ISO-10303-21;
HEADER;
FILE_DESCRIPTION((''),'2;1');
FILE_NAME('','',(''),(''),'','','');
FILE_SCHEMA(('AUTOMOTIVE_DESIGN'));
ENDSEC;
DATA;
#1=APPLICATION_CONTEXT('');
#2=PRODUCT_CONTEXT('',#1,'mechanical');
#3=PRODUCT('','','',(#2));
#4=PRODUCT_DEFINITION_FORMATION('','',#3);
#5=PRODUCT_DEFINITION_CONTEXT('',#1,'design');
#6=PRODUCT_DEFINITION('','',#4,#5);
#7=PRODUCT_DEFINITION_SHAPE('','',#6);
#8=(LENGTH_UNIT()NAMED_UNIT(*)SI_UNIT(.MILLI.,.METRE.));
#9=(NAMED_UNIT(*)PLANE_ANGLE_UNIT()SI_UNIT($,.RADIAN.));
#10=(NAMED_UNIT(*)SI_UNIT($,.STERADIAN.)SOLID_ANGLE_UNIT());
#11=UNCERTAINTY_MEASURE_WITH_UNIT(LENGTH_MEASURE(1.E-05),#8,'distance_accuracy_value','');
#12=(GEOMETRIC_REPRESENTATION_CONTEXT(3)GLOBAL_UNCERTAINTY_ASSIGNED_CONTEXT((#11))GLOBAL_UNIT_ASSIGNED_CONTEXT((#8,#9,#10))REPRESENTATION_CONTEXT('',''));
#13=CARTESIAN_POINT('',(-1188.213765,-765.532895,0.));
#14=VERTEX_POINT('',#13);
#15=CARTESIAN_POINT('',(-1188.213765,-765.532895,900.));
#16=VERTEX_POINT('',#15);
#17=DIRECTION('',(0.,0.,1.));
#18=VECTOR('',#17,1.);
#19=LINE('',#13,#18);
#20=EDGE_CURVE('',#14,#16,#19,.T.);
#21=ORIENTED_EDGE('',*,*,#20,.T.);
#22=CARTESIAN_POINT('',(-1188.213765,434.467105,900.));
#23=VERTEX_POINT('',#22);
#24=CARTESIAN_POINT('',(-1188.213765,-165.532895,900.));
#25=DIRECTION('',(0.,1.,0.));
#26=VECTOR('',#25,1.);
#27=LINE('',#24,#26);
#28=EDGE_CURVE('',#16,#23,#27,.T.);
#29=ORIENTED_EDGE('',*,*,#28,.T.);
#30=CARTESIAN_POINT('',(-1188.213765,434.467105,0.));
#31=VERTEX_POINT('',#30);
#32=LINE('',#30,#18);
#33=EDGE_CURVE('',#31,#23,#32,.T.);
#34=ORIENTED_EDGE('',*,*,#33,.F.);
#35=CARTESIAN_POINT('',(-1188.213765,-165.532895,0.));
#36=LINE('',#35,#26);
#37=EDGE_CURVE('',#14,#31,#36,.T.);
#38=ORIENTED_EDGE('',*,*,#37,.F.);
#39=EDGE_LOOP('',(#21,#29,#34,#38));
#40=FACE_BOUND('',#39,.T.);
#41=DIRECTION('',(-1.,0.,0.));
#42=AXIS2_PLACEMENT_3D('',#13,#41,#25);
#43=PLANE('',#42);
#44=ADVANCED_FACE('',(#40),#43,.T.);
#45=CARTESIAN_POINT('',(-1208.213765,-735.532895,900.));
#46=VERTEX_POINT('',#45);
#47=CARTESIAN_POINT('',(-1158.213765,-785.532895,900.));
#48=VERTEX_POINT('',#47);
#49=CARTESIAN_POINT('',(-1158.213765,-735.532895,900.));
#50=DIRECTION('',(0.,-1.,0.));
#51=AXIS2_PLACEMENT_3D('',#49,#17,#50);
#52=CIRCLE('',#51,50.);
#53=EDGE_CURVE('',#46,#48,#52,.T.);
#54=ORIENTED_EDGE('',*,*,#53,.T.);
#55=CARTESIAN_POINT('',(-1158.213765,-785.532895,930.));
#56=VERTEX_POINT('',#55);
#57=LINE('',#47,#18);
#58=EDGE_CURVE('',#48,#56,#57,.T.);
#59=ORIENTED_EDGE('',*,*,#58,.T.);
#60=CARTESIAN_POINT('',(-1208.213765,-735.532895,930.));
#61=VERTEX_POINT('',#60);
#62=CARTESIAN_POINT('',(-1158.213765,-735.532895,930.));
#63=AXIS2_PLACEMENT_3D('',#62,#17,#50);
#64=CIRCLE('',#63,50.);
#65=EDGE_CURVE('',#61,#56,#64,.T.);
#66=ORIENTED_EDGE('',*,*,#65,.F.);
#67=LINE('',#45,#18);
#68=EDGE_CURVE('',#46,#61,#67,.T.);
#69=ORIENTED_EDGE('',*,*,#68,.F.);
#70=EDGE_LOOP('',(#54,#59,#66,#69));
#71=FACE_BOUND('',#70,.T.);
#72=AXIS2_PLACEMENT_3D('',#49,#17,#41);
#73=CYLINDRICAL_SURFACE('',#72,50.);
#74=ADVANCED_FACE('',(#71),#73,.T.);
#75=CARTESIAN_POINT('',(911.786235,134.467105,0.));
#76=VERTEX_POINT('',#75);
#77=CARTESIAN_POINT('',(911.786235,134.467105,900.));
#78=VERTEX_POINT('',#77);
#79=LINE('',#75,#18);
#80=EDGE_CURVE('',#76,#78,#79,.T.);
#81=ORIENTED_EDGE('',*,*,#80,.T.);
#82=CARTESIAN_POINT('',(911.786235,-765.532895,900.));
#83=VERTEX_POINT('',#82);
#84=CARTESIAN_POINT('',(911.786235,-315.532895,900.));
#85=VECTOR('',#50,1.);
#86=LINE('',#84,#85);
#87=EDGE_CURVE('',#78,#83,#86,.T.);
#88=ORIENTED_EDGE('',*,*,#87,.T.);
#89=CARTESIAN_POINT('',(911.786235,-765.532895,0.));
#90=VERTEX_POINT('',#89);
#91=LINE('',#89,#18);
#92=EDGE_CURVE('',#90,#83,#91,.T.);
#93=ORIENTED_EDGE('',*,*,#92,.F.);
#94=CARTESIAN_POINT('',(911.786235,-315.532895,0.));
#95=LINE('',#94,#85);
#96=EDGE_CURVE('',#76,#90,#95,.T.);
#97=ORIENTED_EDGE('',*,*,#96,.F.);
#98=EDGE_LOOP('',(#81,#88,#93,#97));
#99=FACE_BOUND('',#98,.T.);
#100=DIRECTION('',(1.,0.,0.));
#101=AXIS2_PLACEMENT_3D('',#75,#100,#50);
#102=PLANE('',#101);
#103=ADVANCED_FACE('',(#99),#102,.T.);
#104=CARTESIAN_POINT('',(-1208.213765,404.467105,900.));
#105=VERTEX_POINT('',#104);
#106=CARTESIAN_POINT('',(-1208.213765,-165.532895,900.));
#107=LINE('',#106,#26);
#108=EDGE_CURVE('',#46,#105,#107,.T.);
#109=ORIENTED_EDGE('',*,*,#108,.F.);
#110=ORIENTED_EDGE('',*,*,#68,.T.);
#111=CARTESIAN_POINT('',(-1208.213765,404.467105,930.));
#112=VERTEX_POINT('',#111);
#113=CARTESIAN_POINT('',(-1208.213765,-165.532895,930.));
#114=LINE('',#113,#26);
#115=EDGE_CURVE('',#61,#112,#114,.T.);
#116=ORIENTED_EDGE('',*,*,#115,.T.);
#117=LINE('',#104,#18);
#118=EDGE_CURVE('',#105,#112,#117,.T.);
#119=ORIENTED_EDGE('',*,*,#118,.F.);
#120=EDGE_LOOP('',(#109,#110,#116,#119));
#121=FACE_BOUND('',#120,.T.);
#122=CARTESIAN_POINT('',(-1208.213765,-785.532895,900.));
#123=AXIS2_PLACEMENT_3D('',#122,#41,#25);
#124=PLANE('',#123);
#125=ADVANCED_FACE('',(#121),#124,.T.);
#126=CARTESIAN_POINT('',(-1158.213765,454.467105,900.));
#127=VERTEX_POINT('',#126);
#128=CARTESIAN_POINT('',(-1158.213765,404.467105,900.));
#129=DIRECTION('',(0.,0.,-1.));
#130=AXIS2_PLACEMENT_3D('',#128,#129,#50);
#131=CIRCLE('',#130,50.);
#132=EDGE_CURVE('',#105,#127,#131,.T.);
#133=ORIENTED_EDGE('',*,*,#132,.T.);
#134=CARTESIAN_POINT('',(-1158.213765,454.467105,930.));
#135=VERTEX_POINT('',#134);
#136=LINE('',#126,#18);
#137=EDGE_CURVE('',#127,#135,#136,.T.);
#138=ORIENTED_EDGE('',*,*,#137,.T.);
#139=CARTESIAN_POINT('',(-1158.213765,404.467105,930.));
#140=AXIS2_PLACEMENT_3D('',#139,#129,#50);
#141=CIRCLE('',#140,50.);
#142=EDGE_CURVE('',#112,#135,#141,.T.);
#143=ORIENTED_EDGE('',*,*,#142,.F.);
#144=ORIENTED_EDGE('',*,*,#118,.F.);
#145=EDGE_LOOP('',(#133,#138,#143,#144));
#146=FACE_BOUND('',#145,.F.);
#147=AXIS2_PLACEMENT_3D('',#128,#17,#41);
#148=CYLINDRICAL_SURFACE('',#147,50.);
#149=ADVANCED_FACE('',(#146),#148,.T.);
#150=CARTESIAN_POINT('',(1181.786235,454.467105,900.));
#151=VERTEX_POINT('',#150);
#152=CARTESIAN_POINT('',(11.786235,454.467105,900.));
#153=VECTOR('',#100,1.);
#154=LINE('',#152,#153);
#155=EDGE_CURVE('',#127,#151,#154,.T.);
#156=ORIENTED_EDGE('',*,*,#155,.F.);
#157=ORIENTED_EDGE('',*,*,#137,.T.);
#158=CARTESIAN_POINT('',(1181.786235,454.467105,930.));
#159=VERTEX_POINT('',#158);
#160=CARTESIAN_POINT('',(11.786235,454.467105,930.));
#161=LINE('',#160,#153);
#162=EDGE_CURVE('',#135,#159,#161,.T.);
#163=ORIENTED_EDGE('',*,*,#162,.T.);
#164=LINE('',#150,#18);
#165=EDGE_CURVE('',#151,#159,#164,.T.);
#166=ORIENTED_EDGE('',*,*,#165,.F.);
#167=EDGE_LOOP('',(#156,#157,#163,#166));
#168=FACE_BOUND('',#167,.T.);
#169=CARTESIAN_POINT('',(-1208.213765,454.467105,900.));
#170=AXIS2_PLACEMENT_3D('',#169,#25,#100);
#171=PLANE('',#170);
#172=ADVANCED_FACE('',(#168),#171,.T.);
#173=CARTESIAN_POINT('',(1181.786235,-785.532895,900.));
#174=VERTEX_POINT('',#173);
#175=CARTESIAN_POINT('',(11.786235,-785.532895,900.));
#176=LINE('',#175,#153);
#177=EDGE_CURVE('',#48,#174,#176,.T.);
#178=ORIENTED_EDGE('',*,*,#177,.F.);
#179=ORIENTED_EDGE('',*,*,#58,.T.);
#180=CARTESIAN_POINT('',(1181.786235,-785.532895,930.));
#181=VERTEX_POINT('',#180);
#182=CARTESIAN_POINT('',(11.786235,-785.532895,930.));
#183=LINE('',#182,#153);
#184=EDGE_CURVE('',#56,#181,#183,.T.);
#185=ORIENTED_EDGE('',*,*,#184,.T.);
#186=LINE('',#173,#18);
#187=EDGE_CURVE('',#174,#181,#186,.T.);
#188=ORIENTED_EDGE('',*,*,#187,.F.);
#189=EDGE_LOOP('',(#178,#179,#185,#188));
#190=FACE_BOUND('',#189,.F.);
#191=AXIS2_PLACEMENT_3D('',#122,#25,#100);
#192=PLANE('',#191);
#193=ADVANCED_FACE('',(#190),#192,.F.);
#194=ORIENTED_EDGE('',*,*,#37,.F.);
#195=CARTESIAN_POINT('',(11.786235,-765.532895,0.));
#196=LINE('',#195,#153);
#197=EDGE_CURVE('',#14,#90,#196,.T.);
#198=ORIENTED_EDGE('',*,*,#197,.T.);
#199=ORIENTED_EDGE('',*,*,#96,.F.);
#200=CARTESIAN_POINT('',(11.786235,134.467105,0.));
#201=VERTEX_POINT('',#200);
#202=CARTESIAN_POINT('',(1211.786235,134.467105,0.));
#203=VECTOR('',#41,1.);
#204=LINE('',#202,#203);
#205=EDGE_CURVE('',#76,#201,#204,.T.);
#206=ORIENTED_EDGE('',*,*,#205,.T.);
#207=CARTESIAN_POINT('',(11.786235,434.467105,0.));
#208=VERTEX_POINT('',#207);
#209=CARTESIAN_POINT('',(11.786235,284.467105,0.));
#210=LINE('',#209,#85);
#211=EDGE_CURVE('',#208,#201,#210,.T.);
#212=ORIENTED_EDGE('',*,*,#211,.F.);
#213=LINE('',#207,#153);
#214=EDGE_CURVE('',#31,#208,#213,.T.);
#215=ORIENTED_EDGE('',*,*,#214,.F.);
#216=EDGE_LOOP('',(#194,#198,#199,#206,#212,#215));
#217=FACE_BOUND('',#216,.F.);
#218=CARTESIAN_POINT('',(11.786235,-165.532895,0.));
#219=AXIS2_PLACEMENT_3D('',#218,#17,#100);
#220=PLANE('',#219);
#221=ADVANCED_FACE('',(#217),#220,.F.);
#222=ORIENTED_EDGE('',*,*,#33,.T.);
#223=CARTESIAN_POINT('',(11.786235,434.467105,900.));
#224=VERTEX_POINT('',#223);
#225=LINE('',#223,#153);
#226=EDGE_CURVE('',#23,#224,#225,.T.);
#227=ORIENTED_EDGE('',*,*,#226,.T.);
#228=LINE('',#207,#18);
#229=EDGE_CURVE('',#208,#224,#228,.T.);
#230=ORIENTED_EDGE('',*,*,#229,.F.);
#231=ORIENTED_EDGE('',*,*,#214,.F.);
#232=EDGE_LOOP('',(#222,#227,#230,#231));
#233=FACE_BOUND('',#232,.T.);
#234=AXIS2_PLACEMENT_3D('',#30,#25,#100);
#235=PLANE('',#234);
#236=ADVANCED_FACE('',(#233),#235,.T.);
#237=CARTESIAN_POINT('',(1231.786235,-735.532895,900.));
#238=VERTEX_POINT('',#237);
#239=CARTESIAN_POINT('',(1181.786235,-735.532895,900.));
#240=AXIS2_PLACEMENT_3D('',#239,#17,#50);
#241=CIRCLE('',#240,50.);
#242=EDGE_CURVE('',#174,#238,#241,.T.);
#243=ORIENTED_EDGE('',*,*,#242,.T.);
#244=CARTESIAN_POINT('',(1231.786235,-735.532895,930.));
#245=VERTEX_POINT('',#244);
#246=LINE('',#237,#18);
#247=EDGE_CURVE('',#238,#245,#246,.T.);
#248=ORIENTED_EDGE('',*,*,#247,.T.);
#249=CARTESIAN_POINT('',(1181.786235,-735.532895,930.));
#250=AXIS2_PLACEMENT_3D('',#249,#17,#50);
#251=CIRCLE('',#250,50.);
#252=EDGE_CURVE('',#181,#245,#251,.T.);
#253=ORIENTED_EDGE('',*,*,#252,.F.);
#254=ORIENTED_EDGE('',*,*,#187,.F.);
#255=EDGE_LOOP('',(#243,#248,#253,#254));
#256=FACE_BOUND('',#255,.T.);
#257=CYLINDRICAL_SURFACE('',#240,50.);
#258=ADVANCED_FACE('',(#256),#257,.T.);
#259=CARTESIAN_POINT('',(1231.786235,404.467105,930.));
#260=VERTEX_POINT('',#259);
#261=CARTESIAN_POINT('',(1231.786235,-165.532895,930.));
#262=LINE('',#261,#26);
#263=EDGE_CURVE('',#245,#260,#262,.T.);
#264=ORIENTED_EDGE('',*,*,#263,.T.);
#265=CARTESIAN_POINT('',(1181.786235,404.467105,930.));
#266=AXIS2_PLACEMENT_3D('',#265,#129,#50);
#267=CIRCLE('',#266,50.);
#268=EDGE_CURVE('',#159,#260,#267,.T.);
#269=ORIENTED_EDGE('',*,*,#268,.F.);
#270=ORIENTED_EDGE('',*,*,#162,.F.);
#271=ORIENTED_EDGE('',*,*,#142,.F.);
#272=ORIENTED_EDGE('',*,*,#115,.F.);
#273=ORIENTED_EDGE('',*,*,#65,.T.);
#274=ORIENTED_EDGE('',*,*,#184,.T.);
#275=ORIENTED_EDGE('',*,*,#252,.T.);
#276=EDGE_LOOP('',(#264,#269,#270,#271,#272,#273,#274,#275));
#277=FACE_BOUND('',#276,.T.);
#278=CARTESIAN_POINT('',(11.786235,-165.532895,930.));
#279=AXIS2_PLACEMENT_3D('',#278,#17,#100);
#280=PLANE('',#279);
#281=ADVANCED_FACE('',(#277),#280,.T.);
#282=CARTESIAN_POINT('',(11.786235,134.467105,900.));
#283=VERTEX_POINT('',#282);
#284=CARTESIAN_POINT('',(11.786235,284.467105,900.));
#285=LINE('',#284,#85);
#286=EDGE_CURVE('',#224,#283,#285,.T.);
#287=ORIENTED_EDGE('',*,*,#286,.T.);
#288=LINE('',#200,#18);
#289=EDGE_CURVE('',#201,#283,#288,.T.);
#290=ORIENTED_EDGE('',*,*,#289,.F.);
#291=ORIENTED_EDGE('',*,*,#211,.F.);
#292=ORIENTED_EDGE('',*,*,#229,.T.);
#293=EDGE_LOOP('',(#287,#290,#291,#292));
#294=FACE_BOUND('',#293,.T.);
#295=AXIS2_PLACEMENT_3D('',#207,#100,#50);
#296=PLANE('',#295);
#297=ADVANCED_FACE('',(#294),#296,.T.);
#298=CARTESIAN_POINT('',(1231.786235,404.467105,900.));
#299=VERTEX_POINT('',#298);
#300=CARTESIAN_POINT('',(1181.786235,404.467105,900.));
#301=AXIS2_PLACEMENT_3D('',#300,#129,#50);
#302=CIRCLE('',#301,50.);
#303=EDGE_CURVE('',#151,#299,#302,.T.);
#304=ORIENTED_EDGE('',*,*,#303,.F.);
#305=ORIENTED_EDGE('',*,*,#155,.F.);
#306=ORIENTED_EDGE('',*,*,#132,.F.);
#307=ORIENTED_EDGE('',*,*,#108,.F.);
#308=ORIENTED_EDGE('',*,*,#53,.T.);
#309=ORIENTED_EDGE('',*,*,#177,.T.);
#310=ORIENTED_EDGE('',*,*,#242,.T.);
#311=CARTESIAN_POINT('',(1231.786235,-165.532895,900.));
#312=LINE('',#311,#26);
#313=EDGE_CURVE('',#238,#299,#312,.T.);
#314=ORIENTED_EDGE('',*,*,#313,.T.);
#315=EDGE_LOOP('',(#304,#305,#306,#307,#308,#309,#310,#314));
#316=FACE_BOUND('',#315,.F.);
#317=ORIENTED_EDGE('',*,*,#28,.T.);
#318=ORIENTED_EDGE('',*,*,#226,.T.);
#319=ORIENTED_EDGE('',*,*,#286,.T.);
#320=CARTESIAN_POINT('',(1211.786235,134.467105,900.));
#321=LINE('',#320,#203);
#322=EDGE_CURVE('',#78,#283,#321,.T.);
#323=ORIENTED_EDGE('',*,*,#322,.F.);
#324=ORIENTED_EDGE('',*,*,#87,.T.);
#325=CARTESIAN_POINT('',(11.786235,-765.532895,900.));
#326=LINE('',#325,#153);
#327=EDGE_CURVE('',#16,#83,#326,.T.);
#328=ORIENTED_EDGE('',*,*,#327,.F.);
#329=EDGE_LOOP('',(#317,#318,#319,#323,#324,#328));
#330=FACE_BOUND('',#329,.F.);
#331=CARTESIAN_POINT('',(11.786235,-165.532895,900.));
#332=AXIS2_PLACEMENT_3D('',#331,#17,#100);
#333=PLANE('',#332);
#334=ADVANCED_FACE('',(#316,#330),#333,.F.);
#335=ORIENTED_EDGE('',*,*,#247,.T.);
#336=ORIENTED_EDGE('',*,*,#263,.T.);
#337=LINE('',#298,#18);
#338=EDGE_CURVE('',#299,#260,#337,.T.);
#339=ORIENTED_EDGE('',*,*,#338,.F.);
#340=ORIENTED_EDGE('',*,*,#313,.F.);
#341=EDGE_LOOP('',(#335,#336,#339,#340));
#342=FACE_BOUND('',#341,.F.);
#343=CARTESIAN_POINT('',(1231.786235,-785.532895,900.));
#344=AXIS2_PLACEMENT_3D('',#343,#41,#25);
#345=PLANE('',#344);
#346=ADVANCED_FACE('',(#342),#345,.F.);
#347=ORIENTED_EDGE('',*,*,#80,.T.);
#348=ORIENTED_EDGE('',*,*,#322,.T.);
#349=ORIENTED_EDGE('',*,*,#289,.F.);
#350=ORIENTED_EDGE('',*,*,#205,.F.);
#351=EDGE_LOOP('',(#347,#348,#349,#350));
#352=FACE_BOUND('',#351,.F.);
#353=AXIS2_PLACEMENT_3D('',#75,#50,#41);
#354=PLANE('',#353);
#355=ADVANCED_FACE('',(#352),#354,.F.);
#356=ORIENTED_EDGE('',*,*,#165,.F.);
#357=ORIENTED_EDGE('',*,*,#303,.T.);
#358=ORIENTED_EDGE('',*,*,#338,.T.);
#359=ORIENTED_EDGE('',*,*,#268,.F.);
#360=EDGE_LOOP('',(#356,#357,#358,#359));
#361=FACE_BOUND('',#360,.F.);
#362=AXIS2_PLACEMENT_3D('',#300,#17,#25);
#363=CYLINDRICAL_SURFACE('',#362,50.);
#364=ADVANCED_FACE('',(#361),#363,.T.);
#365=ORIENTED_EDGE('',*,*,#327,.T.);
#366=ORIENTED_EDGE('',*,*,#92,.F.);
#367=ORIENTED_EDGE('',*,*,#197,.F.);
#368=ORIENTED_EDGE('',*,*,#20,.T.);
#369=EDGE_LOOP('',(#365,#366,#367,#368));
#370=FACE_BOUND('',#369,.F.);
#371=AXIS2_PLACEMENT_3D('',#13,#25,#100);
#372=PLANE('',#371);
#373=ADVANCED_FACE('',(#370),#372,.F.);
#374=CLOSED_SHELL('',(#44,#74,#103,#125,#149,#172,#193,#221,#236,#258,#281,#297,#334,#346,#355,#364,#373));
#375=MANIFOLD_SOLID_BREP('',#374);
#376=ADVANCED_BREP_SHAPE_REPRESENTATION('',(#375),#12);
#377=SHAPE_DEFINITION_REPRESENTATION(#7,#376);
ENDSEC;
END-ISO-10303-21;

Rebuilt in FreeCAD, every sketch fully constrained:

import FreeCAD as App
import Part
import Sketcher

V = App.Vector
Q = App.Units.Quantity


def edges_at(feature, points):
    """Names of the edges that pass closest to the given points."""
    edges = feature.Shape.Edges
    near = lambda p: min(range(len(edges)), key=lambda i: edges[i].distToShape(Part.Vertex(*p))[0])
    return sorted({f"Edge{near(p) + 1}" for p in points})

doc = App.newDocument("Part")
body = doc.addObject("PartDesign::Body", "Body")

sketch1 = doc.addObject("Sketcher::SketchObject", "Sketch")
body.addObject(sketch1)
sketch1.AttachmentSupport = (doc.XY_Plane, [""])
sketch1.MapMode = "FlatFace"
sketch1.addGeometry([
    Part.LineSegment(V(-1188, 434, 0), V(-1188, -766, 0)),
    Part.LineSegment(V(-1188, -766, 0), V(1212, -766, 0)),
    Part.LineSegment(V(1212, -766, 0), V(1212, 434, 0)),
    Part.LineSegment(V(1212, 434, 0), V(-1188, 434, 0)),
], False)
sketch1.addConstraint([
    Sketcher.Constraint("Coincident", 0, 2, 1, 1),
    Sketcher.Constraint("Coincident", 1, 2, 2, 1),
    Sketcher.Constraint("Coincident", 2, 2, 3, 1),
    Sketcher.Constraint("Coincident", 3, 2, 0, 1),
    Sketcher.Constraint("Vertical", 0),
    Sketcher.Constraint("Horizontal", 1),
    Sketcher.Constraint("Vertical", 2),
    Sketcher.Constraint("Horizontal", 3),
    Sketcher.Constraint("DistanceX", 1, 1, 1, 2, Q("2400 mm")),
    Sketcher.Constraint("DistanceY", 0, 2, 0, 1, Q("1200 mm")),
    Sketcher.Constraint("DistanceX", 0, 2, -1, 1, Q("1188.213765 mm")),
    Sketcher.Constraint("DistanceY", 0, 2, -1, 1, Q("765.532895 mm")),
])
pad1 = doc.addObject("PartDesign::Pad", "Pad")
body.addObject(pad1)
pad1.Profile = sketch1
pad1.Length = 900

sketch2 = doc.addObject("Sketcher::SketchObject", "Sketch001")
body.addObject(sketch2)
sketch2.AttachmentSupport = (doc.XY_Plane, [""])
sketch2.MapMode = "FlatFace"
sketch2.AttachmentOffset = App.Placement(V(0, 0, 900), App.Rotation())
sketch2.addGeometry([
    Part.LineSegment(V(-1208, 454, 0), V(-1208, -786, 0)),
    Part.LineSegment(V(-1208, -786, 0), V(1232, -786, 0)),
    Part.LineSegment(V(1232, -786, 0), V(1232, 454, 0)),
    Part.LineSegment(V(1232, 454, 0), V(-1208, 454, 0)),
], False)
sketch2.addConstraint([
    Sketcher.Constraint("Coincident", 0, 2, 1, 1),
    Sketcher.Constraint("Coincident", 1, 2, 2, 1),
    Sketcher.Constraint("Coincident", 2, 2, 3, 1),
    Sketcher.Constraint("Coincident", 3, 2, 0, 1),
    Sketcher.Constraint("Vertical", 0),
    Sketcher.Constraint("Horizontal", 1),
    Sketcher.Constraint("Vertical", 2),
    Sketcher.Constraint("Horizontal", 3),
    Sketcher.Constraint("DistanceX", 1, 1, 1, 2, Q("2440 mm")),
    Sketcher.Constraint("DistanceY", 0, 2, 0, 1, Q("1240 mm")),
    Sketcher.Constraint("DistanceX", 0, 2, -1, 1, Q("1208.213765 mm")),
    Sketcher.Constraint("DistanceY", 0, 2, -1, 1, Q("785.532895 mm")),
])
pad2 = doc.addObject("PartDesign::Pad", "Pad001")
body.addObject(pad2)
pad2.Profile = sketch2
pad2.Length = 30

sketch3 = doc.addObject("Sketcher::SketchObject", "Sketch002")
body.addObject(sketch3)
sketch3.AttachmentSupport = (doc.XY_Plane, [""])
sketch3.MapMode = "FlatFace"
sketch3.addGeometry([
    Part.LineSegment(V(1212, 434, 0), V(1212, -766, 0)),
    Part.LineSegment(V(1212, -766, 0), V(912, -766, 0)),
    Part.LineSegment(V(912, -766, 0), V(912, 134, 0)),
    Part.LineSegment(V(912, 134, 0), V(12, 134, 0)),
    Part.LineSegment(V(12, 134, 0), V(12, 434, 0)),
    Part.LineSegment(V(12, 434, 0), V(1212, 434, 0)),
], False)
sketch3.addConstraint([
    Sketcher.Constraint("Coincident", 0, 2, 1, 1),
    Sketcher.Constraint("Coincident", 1, 2, 2, 1),
    Sketcher.Constraint("Coincident", 2, 2, 3, 1),
    Sketcher.Constraint("Coincident", 3, 2, 4, 1),
    Sketcher.Constraint("Coincident", 4, 2, 5, 1),
    Sketcher.Constraint("Coincident", 5, 2, 0, 1),
    Sketcher.Constraint("Vertical", 0),
    Sketcher.Constraint("Horizontal", 1),
    Sketcher.Constraint("Vertical", 2),
    Sketcher.Constraint("Horizontal", 3),
    Sketcher.Constraint("Vertical", 4),
    Sketcher.Constraint("Horizontal", 5),
    Sketcher.Constraint("Equal", 5, 0),
    Sketcher.Constraint("Equal", 3, 2),
    Sketcher.Constraint("DistanceX", 1, 2, 1, 1, Q("300 mm")),
    Sketcher.Constraint("DistanceX", 3, 2, 3, 1, Q("900 mm")),
    Sketcher.Constraint("DistanceX", -1, 1, 0, 2, Q("1211.786235 mm")),
    Sketcher.Constraint("DistanceY", 0, 2, -1, 1, Q("765.532895 mm")),
])
pocket1 = doc.addObject("PartDesign::Pocket", "Pocket")
body.addObject(pocket1)
pocket1.Profile = sketch3
pocket1.Length = 900
pocket1.Reversed = True
doc.recompute()

fillet = doc.addObject("PartDesign::Fillet", "Fillet")
body.addObject(fillet)
fillet.Base = (pocket1, edges_at(pocket1, [
    (1231.786, 454.467, 915),
    (1231.786, -785.533, 915),
    (-1208.214, 454.467, 915),
    (-1208.214, -785.533, 915),
]))
fillet.Radius = 50

doc.recompute()
